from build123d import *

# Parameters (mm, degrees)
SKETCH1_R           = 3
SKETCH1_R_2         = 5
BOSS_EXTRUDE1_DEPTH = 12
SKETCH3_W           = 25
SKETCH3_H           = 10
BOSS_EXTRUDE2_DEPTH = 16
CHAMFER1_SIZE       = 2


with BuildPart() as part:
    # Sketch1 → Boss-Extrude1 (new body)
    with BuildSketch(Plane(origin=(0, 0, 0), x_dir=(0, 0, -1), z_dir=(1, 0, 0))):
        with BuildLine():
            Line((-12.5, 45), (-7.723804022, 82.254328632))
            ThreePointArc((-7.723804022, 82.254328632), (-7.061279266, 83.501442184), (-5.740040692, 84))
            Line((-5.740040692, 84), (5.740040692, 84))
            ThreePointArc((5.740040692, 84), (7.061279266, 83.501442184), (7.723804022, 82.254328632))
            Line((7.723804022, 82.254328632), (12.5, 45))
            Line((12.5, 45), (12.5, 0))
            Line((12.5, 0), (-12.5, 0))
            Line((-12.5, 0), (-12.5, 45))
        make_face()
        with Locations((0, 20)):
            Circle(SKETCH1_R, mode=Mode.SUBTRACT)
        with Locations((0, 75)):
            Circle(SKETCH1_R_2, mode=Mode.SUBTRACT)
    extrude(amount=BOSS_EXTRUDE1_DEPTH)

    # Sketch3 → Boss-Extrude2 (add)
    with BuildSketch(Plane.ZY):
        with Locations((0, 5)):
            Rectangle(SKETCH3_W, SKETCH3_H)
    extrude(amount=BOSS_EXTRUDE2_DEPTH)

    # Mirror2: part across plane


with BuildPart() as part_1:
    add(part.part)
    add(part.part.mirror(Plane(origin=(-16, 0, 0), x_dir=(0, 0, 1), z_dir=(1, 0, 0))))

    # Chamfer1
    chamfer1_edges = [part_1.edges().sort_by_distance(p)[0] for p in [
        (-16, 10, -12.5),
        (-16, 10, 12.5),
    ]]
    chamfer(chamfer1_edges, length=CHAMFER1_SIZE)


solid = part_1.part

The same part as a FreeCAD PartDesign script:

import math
import FreeCAD as App
import Part
import Sketcher


def edges_at(feature, points):
    """Names of the edges that pass closest to the given points."""
    edges = feature.Shape.Edges
    near = lambda p: min(range(len(edges)), key=lambda i: edges[i].distToShape(Part.Vertex(*p))[0])
    return sorted({f"Edge{near(p) + 1}" for p in points})

doc = App.newDocument("Part")
body = doc.addObject("PartDesign::Body", "Body")

# Sketch on YZ plane
sketch1 = body.newObject("Sketcher::SketchObject", "Sketch")
sketch1.AttachmentSupport = (doc.getObject("YZ_Plane"), [""])
sketch1.MapMode = "FlatFace"
sketch1.addGeometry(Part.LineSegment(App.Vector(82.3, 7.7, 0), App.Vector(45, 12.5, 0)), False)
sketch1.addGeometry(Part.LineSegment(App.Vector(45, 12.5, 0), App.Vector(0, 12.5, 0)), False)
sketch1.addGeometry(Part.LineSegment(App.Vector(0, 12.5, 0), App.Vector(0, -12.5, 0)), False)
sketch1.addGeometry(Part.LineSegment(App.Vector(0, -12.5, 0), App.Vector(45, -12.5, 0)), False)
sketch1.addGeometry(Part.LineSegment(App.Vector(45, -12.5, 0), App.Vector(82.3, -7.7, 0)), False)
sketch1.addGeometry(Part.ArcOfCircle(Part.Circle(App.Vector(82, -5.7, 0), App.Vector(0, 0, 1), 2), math.radians(-83), math.radians(0)), False)
sketch1.addGeometry(Part.LineSegment(App.Vector(84, -5.7, 0), App.Vector(84, 5.7, 0)), False)
sketch1.addGeometry(Part.ArcOfCircle(Part.Circle(App.Vector(82, 5.7, 0), App.Vector(0, 0, 1), 2), math.radians(0), math.radians(83)), False)
sketch1.addGeometry(Part.Circle(App.Vector(20, 0, 0), App.Vector(0, 0, 1), 3), False)
sketch1.addGeometry(Part.Circle(App.Vector(75, 0, 0), App.Vector(0, 0, 1), 5), False)
sketch1.addConstraint(Sketcher.Constraint("Coincident", 0, 2, 1, 1))
sketch1.addConstraint(Sketcher.Constraint("Coincident", 1, 2, 2, 1))
sketch1.addConstraint(Sketcher.Constraint("Coincident", 2, 2, 3, 1))
sketch1.addConstraint(Sketcher.Constraint("Coincident", 3, 2, 4, 1))
sketch1.addConstraint(Sketcher.Constraint("Tangent", 4, 2, 5, 1))
sketch1.addConstraint(Sketcher.Constraint("Tangent", 5, 2, 6, 1))
sketch1.addConstraint(Sketcher.Constraint("Tangent", 6, 2, 7, 1))
sketch1.addConstraint(Sketcher.Constraint("Tangent", 7, 2, 0, 1))
sketch1.addConstraint(Sketcher.Constraint("Horizontal", 1))
sketch1.addConstraint(Sketcher.Constraint("Vertical", 2))
sketch1.addConstraint(Sketcher.Constraint("Horizontal", 3))
sketch1.addConstraint(Sketcher.Constraint("Vertical", 6))
sketch1.addConstraint(Sketcher.Constraint("Equal", 5, 7))
sketch1.addConstraint(Sketcher.Constraint("Symmetric", 1, 2, 2, 2, -1, 1))
sketch1.addConstraint(Sketcher.Constraint("Symmetric", 4, 2, 7, 2, -1))
sketch1.addConstraint(Sketcher.Constraint("PointOnObject", 8, 3, -1))
sketch1.addConstraint(Sketcher.Constraint("PointOnObject", 9, 3, -1))
sketch1.addConstraint(Sketcher.Constraint("Diameter", 8, 6.0))
sketch1.addConstraint(Sketcher.Constraint("Diameter", 9, 10.0))
sketch1.addConstraint(Sketcher.Constraint("Radius", 5, 2.0))
sketch1.addConstraint(Sketcher.Constraint("DistanceX", 1, 2, 1, 1, 45.0))
sketch1.addConstraint(Sketcher.Constraint("DistanceY", 2, 2, 2, 1, 25.0))
sketch1.addConstraint(Sketcher.Constraint("DistanceX", -1, 1, 5, 3, 82.0))
sketch1.addConstraint(Sketcher.Constraint("DistanceX", -1, 1, 8, 3, 20.0))
sketch1.addConstraint(Sketcher.Constraint("DistanceX", -1, 1, 9, 3, 75.0))
sketch1.addConstraint(Sketcher.Constraint("DistanceY", 6, 1, 6, 2, 11.480081))
pad1 = body.newObject("PartDesign::Pad", "Pad")
pad1.Profile = sketch1
pad1.Length = 12

# Sketch on YZ plane
sketch2 = body.newObject("Sketcher::SketchObject", "Sketch001")
sketch2.AttachmentSupport = (doc.getObject("YZ_Plane"), [""])
sketch2.MapMode = "FlatFace"
sketch2.addGeometry(Part.LineSegment(App.Vector(10, -12, 0), App.Vector(0, -12, 0)), False)
sketch2.addGeometry(Part.LineSegment(App.Vector(0, -12, 0), App.Vector(0, 12, 0)), False)
sketch2.addGeometry(Part.LineSegment(App.Vector(0, 12, 0), App.Vector(10, 12, 0)), False)
sketch2.addGeometry(Part.LineSegment(App.Vector(10, 12, 0), App.Vector(10, -12, 0)), False)
sketch2.addConstraint(Sketcher.Constraint("Coincident", 0, 2, 1, 1))
sketch2.addConstraint(Sketcher.Constraint("Coincident", 1, 2, 2, 1))
sketch2.addConstraint(Sketcher.Constraint("Coincident", 2, 2, 3, 1))
sketch2.addConstraint(Sketcher.Constraint("Coincident", 3, 2, 0, 1))
sketch2.addConstraint(Sketcher.Constraint("Horizontal", 0))
sketch2.addConstraint(Sketcher.Constraint("Vertical", 1))
sketch2.addConstraint(Sketcher.Constraint("Horizontal", 2))
sketch2.addConstraint(Sketcher.Constraint("Vertical", 3))
sketch2.addConstraint(Sketcher.Constraint("Symmetric", 0, 2, 1, 2, -1, 1))
sketch2.addConstraint(Sketcher.Constraint("DistanceX", 0, 2, 0, 1, 10.0))
sketch2.addConstraint(Sketcher.Constraint("DistanceY", 1, 1, 1, 2, 25.0))
pad2 = body.newObject("PartDesign::Pad", "Pad001")
pad2.Profile = sketch2
pad2.Length = 16
pad2.Reversed = True
body2 = doc.addObject("PartDesign::Body", "Body001")
doc.recompute()

body2.BaseFeature = body
doc.recompute()

mirroring = doc.addObject("Part::Mirroring", "Mirroring")
mirroring.Source = body
mirroring.Base = App.Vector(-16, 0, 0)
mirroring.Normal = App.Vector(1, 0, 0)
body3 = doc.addObject("PartDesign::Body", "Body002")
body3.BaseFeature = mirroring
boolean = body2.newObject("PartDesign::Boolean", "Boolean")
boolean.Type = "Fuse"
boolean.addObjects([body3])
doc.recompute()

chamfer = body2.newObject("PartDesign::Chamfer", "Chamfer")
chamfer.Base = (boolean, edges_at(boolean, [(-16, 10, -12.5), (-16, 10, 12.5)]))
chamfer.Size = 2
mirroring.Visibility = False

doc.recompute()
